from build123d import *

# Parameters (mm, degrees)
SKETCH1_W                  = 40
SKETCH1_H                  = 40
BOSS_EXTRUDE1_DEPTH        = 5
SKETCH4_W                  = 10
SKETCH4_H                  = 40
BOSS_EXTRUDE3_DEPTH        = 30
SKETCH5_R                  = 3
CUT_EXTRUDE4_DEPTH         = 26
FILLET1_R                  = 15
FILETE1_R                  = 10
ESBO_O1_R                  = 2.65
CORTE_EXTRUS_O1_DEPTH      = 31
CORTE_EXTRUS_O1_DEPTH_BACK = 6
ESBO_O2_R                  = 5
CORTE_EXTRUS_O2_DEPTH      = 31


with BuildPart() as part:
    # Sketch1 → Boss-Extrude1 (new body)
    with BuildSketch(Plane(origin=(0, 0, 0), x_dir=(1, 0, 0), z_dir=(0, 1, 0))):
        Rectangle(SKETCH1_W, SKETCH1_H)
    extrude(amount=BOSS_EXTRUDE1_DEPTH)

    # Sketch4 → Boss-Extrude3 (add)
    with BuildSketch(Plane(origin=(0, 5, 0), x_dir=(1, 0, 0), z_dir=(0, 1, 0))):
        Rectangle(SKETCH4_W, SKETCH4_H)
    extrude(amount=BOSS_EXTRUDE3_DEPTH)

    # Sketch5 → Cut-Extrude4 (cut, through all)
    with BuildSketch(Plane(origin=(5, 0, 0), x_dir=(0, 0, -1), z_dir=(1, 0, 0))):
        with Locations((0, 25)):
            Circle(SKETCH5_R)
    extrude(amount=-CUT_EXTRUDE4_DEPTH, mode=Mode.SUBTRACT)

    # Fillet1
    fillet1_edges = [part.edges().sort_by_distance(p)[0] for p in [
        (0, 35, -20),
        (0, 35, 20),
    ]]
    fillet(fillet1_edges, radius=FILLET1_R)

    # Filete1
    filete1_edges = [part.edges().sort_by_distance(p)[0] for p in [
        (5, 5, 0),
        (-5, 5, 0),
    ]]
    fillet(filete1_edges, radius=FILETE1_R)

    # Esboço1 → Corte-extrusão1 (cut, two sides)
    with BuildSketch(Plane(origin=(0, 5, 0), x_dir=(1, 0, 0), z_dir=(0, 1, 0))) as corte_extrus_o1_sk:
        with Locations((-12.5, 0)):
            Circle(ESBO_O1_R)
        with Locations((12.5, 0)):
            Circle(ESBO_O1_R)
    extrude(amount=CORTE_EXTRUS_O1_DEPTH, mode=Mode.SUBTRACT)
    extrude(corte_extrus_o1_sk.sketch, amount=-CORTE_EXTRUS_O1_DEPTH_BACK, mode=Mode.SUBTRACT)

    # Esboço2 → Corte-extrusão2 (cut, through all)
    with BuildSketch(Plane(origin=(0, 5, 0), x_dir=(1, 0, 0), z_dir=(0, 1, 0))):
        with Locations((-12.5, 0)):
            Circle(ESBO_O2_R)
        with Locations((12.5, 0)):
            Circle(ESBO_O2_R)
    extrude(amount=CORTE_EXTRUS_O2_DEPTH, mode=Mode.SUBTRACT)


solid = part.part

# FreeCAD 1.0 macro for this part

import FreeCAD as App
import Part
import Sketcher


def edges_at(feature, points):
    """Names of the edges that pass closest to the given points."""
    edges = feature.Shape.Edges
    near = lambda p: min(range(len(edges)), key=lambda i: edges[i].distToShape(Part.Vertex(*p))[0])
    return sorted({f"Edge{near(p) + 1}" for p in points})

doc = App.newDocument("Part")
body = doc.addObject("PartDesign::Body", "Body")

# Sketch on XZ plane
sketch1 = body.newObject("Sketcher::SketchObject", "Sketch")
sketch1.AttachmentSupport = (doc.getObject("XZ_Plane"), [""])
sketch1.MapMode = "FlatFace"
sketch1.addGeometry(Part.LineSegment(App.Vector(-20, -20, 0), App.Vector(-20, 20, 0)), False)
sketch1.addGeometry(Part.LineSegment(App.Vector(-20, 20, 0), App.Vector(20, 20, 0)), False)
sketch1.addGeometry(Part.LineSegment(App.Vector(20, 20, 0), App.Vector(20, -20, 0)), False)
sketch1.addGeometry(Part.LineSegment(App.Vector(20, -20, 0), App.Vector(-20, -20, 0)), False)
sketch1.addConstraint(Sketcher.Constraint("Coincident", 0, 2, 1, 1))
sketch1.addConstraint(Sketcher.Constraint("Coincident", 1, 2, 2, 1))
sketch1.addConstraint(Sketcher.Constraint("Coincident", 2, 2, 3, 1))
sketch1.addConstraint(Sketcher.Constraint("Coincident", 3, 2, 0, 1))
sketch1.addConstraint(Sketcher.Constraint("Vertical", 0))
sketch1.addConstraint(Sketcher.Constraint("Horizontal", 1))
sketch1.addConstraint(Sketcher.Constraint("Vertical", 2))
sketch1.addConstraint(Sketcher.Constraint("Horizontal", 3))
sketch1.addConstraint(Sketcher.Constraint("Symmetric", 0, 2, 2, 2, -1, 1))
sketch1.addConstraint(Sketcher.Constraint("Equal", 3, 0))
sketch1.addConstraint(Sketcher.Constraint("DistanceX", 1, 1, 1, 2, 40.0))
pad1 = body.newObject("PartDesign::Pad", "Pad")
pad1.Profile = sketch1
pad1.Length = 5
pad1.Reversed = True

# Sketch on XZ plane
sketch2 = body.newObject("Sketcher::SketchObject", "Sketch001")
sketch2.AttachmentSupport = (doc.getObject("XZ_Plane"), [""])
sketch2.MapMode = "FlatFace"
sketch2.AttachmentOffset = App.Placement(App.Vector(0, 0, -5), App.Rotation())
sketch2.addGeometry(Part.LineSegment(App.Vector(-5, -20, 0), App.Vector(-5, 20, 0)), False)
sketch2.addGeometry(Part.LineSegment(App.Vector(-5, 20, 0), App.Vector(5, 20, 0)), False)
sketch2.addGeometry(Part.LineSegment(App.Vector(5, 20, 0), App.Vector(5, -20, 0)), False)
sketch2.addGeometry(Part.LineSegment(App.Vector(5, -20, 0), App.Vector(-5, -20, 0)), False)
sketch2.addConstraint(Sketcher.Constraint("Coincident", 0, 2, 1, 1))
sketch2.addConstraint(Sketcher.Constraint("Coincident", 1, 2, 2, 1))
sketch2.addConstraint(Sketcher.Constraint("Coincident", 2, 2, 3, 1))
sketch2.addConstraint(Sketcher.Constraint("Coincident", 3, 2, 0, 1))
sketch2.addConstraint(Sketcher.Constraint("Vertical", 0))
sketch2.addConstraint(Sketcher.Constraint("Horizontal", 1))
sketch2.addConstraint(Sketcher.Constraint("Vertical", 2))
sketch2.addConstraint(Sketcher.Constraint("Horizontal", 3))
sketch2.addConstraint(Sketcher.Constraint("Symmetric", 0, 2, 2, 2, -1, 1))
sketch2.addConstraint(Sketcher.Constraint("DistanceX", 1, 1, 1, 2, 10.0))
sketch2.addConstraint(Sketcher.Constraint("DistanceY", 0, 1, 0, 2, 40.0))
pad2 = body.newObject("PartDesign::Pad", "Pad001")
pad2.Profile = sketch2
pad2.Length = 30
pad2.Reversed = True

# Sketch on YZ plane
sketch3 = body.newObject("Sketcher::SketchObject", "Sketch002")
sketch3.AttachmentSupport = (doc.getObject("YZ_Plane"), [""])
sketch3.MapMode = "FlatFace"
sketch3.AttachmentOffset = App.Placement(App.Vector(0, 0, 5), App.Rotation())
sketch3.addGeometry(Part.Circle(App.Vector(25, 0, 0), App.Vector(0, 0, 1), 3), False)
sketch3.addConstraint(Sketcher.Constraint("PointOnObject", 0, 3, -1))
sketch3.addConstraint(Sketcher.Constraint("Diameter", 0, 6.0))
sketch3.addConstraint(Sketcher.Constraint("DistanceX", -1, 1, 0, 3, 25.0))
pocket1 = body.newObject("PartDesign::Pocket", "Pocket")
pocket1.Profile = sketch3
pocket1.Type = "ThroughAll"
doc.recompute()

fillet = body.newObject("PartDesign::Fillet", "Fillet")
fillet.Base = (pocket1, edges_at(pocket1, [(0, 35, -20), (0, 35, 20)]))
fillet.Radius = 15
doc.recompute()

fillet2 = body.newObject("PartDesign::Fillet", "Fillet001")
fillet2.Base = (fillet, edges_at(fillet, [(5, 5, 0), (-5, 5, 0)]))
fillet2.Radius = 10

# Sketch on XZ plane
sketch4 = body.newObject("Sketcher::SketchObject", "Sketch003")
sketch4.AttachmentSupport = (doc.getObject("XZ_Plane"), [""])
sketch4.MapMode = "FlatFace"
sketch4.AttachmentOffset = App.Placement(App.Vector(0, 0, -5), App.Rotation())
sketch4.addGeometry(Part.Circle(App.Vector(-12.5, 0, 0), App.Vector(0, 0, 1), 2.6), False)
sketch4.addGeometry(Part.Circle(App.Vector(12.5, 0, 0), App.Vector(0, 0, 1), 2.6), False)
sketch4.addConstraint(Sketcher.Constraint("Equal", 0, 1))
sketch4.addConstraint(Sketcher.Constraint("Symmetric", 0, 3, 1, 3, -1, 1))
sketch4.addConstraint(Sketcher.Constraint("PointOnObject", 0, 3, -1))
sketch4.addConstraint(Sketcher.Constraint("Diameter", 0, 5.3))
sketch4.addConstraint(Sketcher.Constraint("DistanceX", 0, 3, 1, 3, 25.0))
pocket2 = body.newObject("PartDesign::Pocket", "Pocket001")
pocket2.Profile = sketch4
pocket2.Type = "ThroughAll"
pocket2.Midplane = True

# Sketch on XZ plane
sketch5 = body.newObject("Sketcher::SketchObject", "Sketch004")
sketch5.AttachmentSupport = (doc.getObject("XZ_Plane"), [""])
sketch5.MapMode = "FlatFace"
sketch5.AttachmentOffset = App.Placement(App.Vector(0, 0, -5), App.Rotation())
sketch5.addGeometry(Part.Circle(App.Vector(-12, 0, 0), App.Vector(0, 0, 1), 5), False)
sketch5.addGeometry(Part.Circle(App.Vector(12, 0, 0), App.Vector(0, 0, 1), 5), False)
sketch5.addConstraint(Sketcher.Constraint("Equal", 0, 1))
sketch5.addConstraint(Sketcher.Constraint("Symmetric", 0, 3, 1, 3, -1, 1))
sketch5.addConstraint(Sketcher.Constraint("PointOnObject", 0, 3, -1))
sketch5.addConstraint(Sketcher.Constraint("Diameter", 0, 10.0))
sketch5.addConstraint(Sketcher.Constraint("DistanceX", 0, 3, 1, 3, 25.0))
pocket3 = body.newObject("PartDesign::Pocket", "Pocket002")
pocket3.Profile = sketch5
pocket3.Type = "ThroughAll"

doc.recompute()
